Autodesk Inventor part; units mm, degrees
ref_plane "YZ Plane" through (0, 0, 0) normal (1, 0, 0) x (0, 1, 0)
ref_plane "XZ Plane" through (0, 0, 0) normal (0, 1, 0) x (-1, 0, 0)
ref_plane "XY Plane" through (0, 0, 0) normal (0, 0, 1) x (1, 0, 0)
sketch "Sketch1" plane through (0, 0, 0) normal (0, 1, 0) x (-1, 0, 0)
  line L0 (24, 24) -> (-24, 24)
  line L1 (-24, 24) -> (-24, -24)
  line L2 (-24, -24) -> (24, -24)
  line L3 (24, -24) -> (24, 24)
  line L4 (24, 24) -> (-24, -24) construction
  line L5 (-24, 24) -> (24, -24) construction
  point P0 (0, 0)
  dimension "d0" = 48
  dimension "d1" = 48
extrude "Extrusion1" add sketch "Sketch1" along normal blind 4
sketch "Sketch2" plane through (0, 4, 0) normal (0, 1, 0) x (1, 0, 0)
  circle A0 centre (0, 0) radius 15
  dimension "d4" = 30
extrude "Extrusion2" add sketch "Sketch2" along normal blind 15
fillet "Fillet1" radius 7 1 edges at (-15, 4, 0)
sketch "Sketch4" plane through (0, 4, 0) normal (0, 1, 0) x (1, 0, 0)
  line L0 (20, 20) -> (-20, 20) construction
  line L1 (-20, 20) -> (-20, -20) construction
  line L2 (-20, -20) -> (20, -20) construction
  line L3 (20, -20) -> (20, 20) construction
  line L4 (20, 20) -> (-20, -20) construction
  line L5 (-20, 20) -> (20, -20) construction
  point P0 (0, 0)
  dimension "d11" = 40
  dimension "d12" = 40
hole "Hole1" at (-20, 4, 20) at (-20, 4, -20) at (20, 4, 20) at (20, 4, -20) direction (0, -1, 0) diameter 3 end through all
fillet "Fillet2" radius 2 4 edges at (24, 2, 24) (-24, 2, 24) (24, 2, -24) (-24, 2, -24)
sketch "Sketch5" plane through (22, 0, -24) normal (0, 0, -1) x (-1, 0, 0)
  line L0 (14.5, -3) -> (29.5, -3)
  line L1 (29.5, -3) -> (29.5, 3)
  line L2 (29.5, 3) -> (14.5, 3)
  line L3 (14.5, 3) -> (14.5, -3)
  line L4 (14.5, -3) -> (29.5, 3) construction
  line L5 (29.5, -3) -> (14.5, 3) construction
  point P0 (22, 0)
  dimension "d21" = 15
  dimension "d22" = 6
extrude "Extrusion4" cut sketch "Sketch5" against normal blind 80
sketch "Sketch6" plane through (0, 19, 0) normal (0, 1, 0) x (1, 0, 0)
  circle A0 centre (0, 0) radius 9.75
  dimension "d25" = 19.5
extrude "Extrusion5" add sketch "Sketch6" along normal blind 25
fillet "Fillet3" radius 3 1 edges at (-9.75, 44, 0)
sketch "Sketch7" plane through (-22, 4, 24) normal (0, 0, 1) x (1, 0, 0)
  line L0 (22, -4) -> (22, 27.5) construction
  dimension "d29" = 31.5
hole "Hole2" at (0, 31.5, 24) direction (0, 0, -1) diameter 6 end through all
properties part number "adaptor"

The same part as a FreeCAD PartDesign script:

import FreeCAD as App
import Part
import Sketcher


def edges_at(feature, points):
    """Names of the edges that pass closest to the given points."""
    edges = feature.Shape.Edges
    near = lambda p: min(range(len(edges)), key=lambda i: edges[i].distToShape(Part.Vertex(*p))[0])
    return sorted({f"Edge{near(p) + 1}" for p in points})


def add_polygon(sketch, points):
    """Adds a closed chain of lines whose ends are joined by coincident constraints."""
    first, n = sketch.GeometryCount, len(points)
    for a, b in zip(points, points[1:] + points[:1]):
        sketch.addGeometry(Part.LineSegment(App.Vector(*a, 0), App.Vector(*b, 0)), False)
    for i in range(n):
        sketch.addConstraint(Sketcher.Constraint("Coincident", first + i, 2, first + (i + 1) % n, 1))

doc = App.newDocument("Part")
params = doc.addObject("Spreadsheet::Sheet", "Params")
for row, (alias, value) in enumerate([
    ("sketch1_width", "48 mm"),
    ("pad1_length", "4 mm"),
    ("sketch2_diameter", "30 mm"),
    ("pad2_length", "15 mm"),
    ("fillet_radius", "7 mm"),
    ("sketch3_diameter", "3 mm"),
    ("hole_diameter", "3 mm"),
    ("fillet2_radius", "2 mm"),
    ("sketch4_width", "15 mm"),
    ("sketch4_height", "6 mm"),
    ("pocket1_length", "80 mm"),
    ("sketch5_diameter", "19.5 mm"),
    ("pad3_length", "25 mm"),
    ("fillet3_radius", "3 mm"),
    ("sketch6_diameter", "6 mm"),
    ("hole2_diameter", "6 mm"),
], start=1):
    params.set(f"A{row}", alias)
    params.set(f"B{row}", "=" + value)
    params.setAlias(f"B{row}", alias)

body = doc.addObject("PartDesign::Body", "Body")

# Sketch on XZ plane
sketch1 = body.newObject("Sketcher::SketchObject", "Sketch")
sketch1.AttachmentSupport = (doc.getObject("XZ_Plane"), [""])
sketch1.MapMode = "FlatFace"
add_polygon(sketch1, [(-24, -24), (-24, 24), (24, 24), (24, -24)])  # lines 0-3
sketch1.addConstraint(Sketcher.Constraint("Vertical", 0))
sketch1.addConstraint(Sketcher.Constraint("Horizontal", 1))
sketch1.addConstraint(Sketcher.Constraint("Vertical", 2))
sketch1.addConstraint(Sketcher.Constraint("Horizontal", 3))
sketch1.addConstraint(Sketcher.Constraint("Symmetric", 0, 2, 2, 2, -1, 1))
sketch1.addConstraint(Sketcher.Constraint("Equal", 3, 0))
sketch1.addConstraint(Sketcher.Constraint("DistanceX", 1, 1, 1, 2, 48.0))
sketch1.setExpression("Constraints[10]", "Params.sketch1_width")
pad1 = body.newObject("PartDesign::Pad", "Pad")
pad1.Profile = sketch1
pad1.setExpression("Length", "Params.pad1_length")
pad1.Reversed = True

# Sketch on XZ plane
sketch2 = body.newObject("Sketcher::SketchObject", "Sketch001")
sketch2.AttachmentSupport = (doc.getObject("XZ_Plane"), [""])
sketch2.MapMode = "FlatFace"
sketch2.AttachmentOffset = App.Placement(App.Vector(0, 0, -4), App.Rotation())
sketch2.addGeometry(Part.Circle(App.Vector(0, 0, 0), App.Vector(0, 0, 1), 15), False)
sketch2.addConstraint(Sketcher.Constraint("Coincident", 0, 3, -1, 1))
sketch2.addConstraint(Sketcher.Constraint("Diameter", 0, 30.0))
sketch2.setExpression("Constraints[1]", "Params.sketch2_diameter")
pad2 = body.newObject("PartDesign::Pad", "Pad001")
pad2.Profile = sketch2
pad2.setExpression("Length", "Params.pad2_length")
pad2.Reversed = True
doc.recompute()

fillet = body.newObject("PartDesign::Fillet", "Fillet")
fillet.Base = (pad2, edges_at(pad2, [(-15, 4, 0)]))
fillet.setExpression("Radius", "Params.fillet_radius")

# Sketch on XZ plane
sketch3 = body.newObject("Sketcher::SketchObject", "Sketch002")
sketch3.AttachmentSupport = (doc.getObject("XZ_Plane"), [""])
sketch3.MapMode = "FlatFace"
sketch3.AttachmentOffset = App.Placement(App.Vector(0, 0, -4), App.Rotation())
sketch3.addGeometry(Part.Circle(App.Vector(-20, 20, 0), App.Vector(0, 0, 1), 1.5), False)
sketch3.addGeometry(Part.Circle(App.Vector(-20, -20, 0), App.Vector(0, 0, 1), 1.5), False)
sketch3.addGeometry(Part.Circle(App.Vector(20, 20, 0), App.Vector(0, 0, 1), 1.5), False)
sketch3.addGeometry(Part.Circle(App.Vector(20, -20, 0), App.Vector(0, 0, 1), 1.5), False)
sketch3.addConstraint(Sketcher.Constraint("Equal", 0, 1))
sketch3.addConstraint(Sketcher.Constraint("Equal", 1, 2))
sketch3.addConstraint(Sketcher.Constraint("Equal", 2, 3))
sketch3.addConstraint(Sketcher.Constraint("Symmetric", 1, 3, 2, 3, -1, 1))
sketch3.addConstraint(Sketcher.Constraint("Symmetric", 0, 3, 3, 3, -1, 1))
sketch3.addConstraint(Sketcher.Constraint("Symmetric", 0, 3, 2, 3, -2))
sketch3.addConstraint(Sketcher.Constraint("Diameter", 0, 3.0))
sketch3.addConstraint(Sketcher.Constraint("DistanceX", 0, 3, -1, 1, 20.0))
sketch3.addConstraint(Sketcher.Constraint("DistanceY", -1, 1, 0, 3, 20.0))
sketch3.setExpression("Constraints[6]", "Params.sketch3_diameter")
doc.recompute()
hole = body.newObject("PartDesign::Hole", "Hole")
hole.Profile = sketch3
hole.ThreadType = "None"
hole.setExpression("Diameter", "Params.hole_diameter")
hole.DepthType = "ThroughAll"
hole.Reversed = True
doc.recompute()

fillet2 = body.newObject("PartDesign::Fillet", "Fillet001")
fillet2.Base = (hole, edges_at(hole, [
    (24, 2, 24),
    (-24, 2, 24),
    (24, 2, -24),
    (-24, 2, -24),
]))
fillet2.setExpression("Radius", "Params.fillet2_radius")

# Sketch on XY plane
sketch4 = body.newObject("Sketcher::SketchObject", "Sketch003")
sketch4.AttachmentSupport = (doc.getObject("XY_Plane"), [""])
sketch4.MapMode = "FlatFace"
sketch4.AttachmentOffset = App.Placement(App.Vector(0, 0, -24), App.Rotation())
add_polygon(sketch4, [(8, 3), (8, -3), (-8, -3), (-8, 3)])  # lines 0-3
sketch4.addConstraint(Sketcher.Constraint("Vertical", 0))
sketch4.addConstraint(Sketcher.Constraint("Horizontal", 1))
sketch4.addConstraint(Sketcher.Constraint("Vertical", 2))
sketch4.addConstraint(Sketcher.Constraint("Horizontal", 3))
sketch4.addConstraint(Sketcher.Constraint("Symmetric", 0, 2, 2, 2, -1, 1))
sketch4.addConstraint(Sketcher.Constraint("DistanceX", 1, 2, 1, 1, 15.0))
sketch4.addConstraint(Sketcher.Constraint("DistanceY", 0, 2, 0, 1, 6.0))
sketch4.setExpression("Constraints[9]", "Params.sketch4_width")
sketch4.setExpression("Constraints[10]", "Params.sketch4_height")
pocket1 = body.newObject("PartDesign::Pocket", "Pocket")
pocket1.Profile = sketch4
pocket1.setExpression("Length", "Params.pocket1_length")
pocket1.Reversed = True

# Sketch on XZ plane
sketch5 = body.newObject("Sketcher::SketchObject", "Sketch004")
sketch5.AttachmentSupport = (doc.getObject("XZ_Plane"), [""])
sketch5.MapMode = "FlatFace"
sketch5.AttachmentOffset = App.Placement(App.Vector(0, 0, -19), App.Rotation())
sketch5.addGeometry(Part.Circle(App.Vector(0, 0, 0), App.Vector(0, 0, 1), 10), False)
sketch5.addConstraint(Sketcher.Constraint("Coincident", 0, 3, -1, 1))
sketch5.addConstraint(Sketcher.Constraint("Diameter", 0, 19.5))
sketch5.setExpression("Constraints[1]", "Params.sketch5_diameter")
pad3 = body.newObject("PartDesign::Pad", "Pad002")
pad3.Profile = sketch5
pad3.setExpression("Length", "Params.pad3_length")
pad3.Reversed = True
doc.recompute()

fillet3 = body.newObject("PartDesign::Fillet", "Fillet002")
fillet3.Base = (pad3, edges_at(pad3, [(-9.75, 44, 0)]))
fillet3.setExpression("Radius", "Params.fillet3_radius")

# Sketch on XY plane
sketch6 = body.newObject("Sketcher::SketchObject", "Sketch005")
sketch6.AttachmentSupport = (doc.getObject("XY_Plane"), [""])
sketch6.MapMode = "FlatFace"
sketch6.AttachmentOffset = App.Placement(App.Vector(0, 0, 24), App.Rotation())
sketch6.addGeometry(Part.Circle(App.Vector(0, 31.5, 0), App.Vector(0, 0, 1), 3), False)
sketch6.addConstraint(Sketcher.Constraint("PointOnObject", 0, 3, -2))
sketch6.addConstraint(Sketcher.Constraint("Diameter", 0, 6.0))
sketch6.addConstraint(Sketcher.Constraint("DistanceY", -1, 1, 0, 3, 31.5))
sketch6.setExpression("Constraints[1]", "Params.sketch6_diameter")
doc.recompute()
hole2 = body.newObject("PartDesign::Hole", "Hole001")
hole2.Profile = sketch6
hole2.ThreadType = "None"
hole2.setExpression("Diameter", "Params.hole2_diameter")
hole2.DepthType = "ThroughAll"

doc.recompute()
